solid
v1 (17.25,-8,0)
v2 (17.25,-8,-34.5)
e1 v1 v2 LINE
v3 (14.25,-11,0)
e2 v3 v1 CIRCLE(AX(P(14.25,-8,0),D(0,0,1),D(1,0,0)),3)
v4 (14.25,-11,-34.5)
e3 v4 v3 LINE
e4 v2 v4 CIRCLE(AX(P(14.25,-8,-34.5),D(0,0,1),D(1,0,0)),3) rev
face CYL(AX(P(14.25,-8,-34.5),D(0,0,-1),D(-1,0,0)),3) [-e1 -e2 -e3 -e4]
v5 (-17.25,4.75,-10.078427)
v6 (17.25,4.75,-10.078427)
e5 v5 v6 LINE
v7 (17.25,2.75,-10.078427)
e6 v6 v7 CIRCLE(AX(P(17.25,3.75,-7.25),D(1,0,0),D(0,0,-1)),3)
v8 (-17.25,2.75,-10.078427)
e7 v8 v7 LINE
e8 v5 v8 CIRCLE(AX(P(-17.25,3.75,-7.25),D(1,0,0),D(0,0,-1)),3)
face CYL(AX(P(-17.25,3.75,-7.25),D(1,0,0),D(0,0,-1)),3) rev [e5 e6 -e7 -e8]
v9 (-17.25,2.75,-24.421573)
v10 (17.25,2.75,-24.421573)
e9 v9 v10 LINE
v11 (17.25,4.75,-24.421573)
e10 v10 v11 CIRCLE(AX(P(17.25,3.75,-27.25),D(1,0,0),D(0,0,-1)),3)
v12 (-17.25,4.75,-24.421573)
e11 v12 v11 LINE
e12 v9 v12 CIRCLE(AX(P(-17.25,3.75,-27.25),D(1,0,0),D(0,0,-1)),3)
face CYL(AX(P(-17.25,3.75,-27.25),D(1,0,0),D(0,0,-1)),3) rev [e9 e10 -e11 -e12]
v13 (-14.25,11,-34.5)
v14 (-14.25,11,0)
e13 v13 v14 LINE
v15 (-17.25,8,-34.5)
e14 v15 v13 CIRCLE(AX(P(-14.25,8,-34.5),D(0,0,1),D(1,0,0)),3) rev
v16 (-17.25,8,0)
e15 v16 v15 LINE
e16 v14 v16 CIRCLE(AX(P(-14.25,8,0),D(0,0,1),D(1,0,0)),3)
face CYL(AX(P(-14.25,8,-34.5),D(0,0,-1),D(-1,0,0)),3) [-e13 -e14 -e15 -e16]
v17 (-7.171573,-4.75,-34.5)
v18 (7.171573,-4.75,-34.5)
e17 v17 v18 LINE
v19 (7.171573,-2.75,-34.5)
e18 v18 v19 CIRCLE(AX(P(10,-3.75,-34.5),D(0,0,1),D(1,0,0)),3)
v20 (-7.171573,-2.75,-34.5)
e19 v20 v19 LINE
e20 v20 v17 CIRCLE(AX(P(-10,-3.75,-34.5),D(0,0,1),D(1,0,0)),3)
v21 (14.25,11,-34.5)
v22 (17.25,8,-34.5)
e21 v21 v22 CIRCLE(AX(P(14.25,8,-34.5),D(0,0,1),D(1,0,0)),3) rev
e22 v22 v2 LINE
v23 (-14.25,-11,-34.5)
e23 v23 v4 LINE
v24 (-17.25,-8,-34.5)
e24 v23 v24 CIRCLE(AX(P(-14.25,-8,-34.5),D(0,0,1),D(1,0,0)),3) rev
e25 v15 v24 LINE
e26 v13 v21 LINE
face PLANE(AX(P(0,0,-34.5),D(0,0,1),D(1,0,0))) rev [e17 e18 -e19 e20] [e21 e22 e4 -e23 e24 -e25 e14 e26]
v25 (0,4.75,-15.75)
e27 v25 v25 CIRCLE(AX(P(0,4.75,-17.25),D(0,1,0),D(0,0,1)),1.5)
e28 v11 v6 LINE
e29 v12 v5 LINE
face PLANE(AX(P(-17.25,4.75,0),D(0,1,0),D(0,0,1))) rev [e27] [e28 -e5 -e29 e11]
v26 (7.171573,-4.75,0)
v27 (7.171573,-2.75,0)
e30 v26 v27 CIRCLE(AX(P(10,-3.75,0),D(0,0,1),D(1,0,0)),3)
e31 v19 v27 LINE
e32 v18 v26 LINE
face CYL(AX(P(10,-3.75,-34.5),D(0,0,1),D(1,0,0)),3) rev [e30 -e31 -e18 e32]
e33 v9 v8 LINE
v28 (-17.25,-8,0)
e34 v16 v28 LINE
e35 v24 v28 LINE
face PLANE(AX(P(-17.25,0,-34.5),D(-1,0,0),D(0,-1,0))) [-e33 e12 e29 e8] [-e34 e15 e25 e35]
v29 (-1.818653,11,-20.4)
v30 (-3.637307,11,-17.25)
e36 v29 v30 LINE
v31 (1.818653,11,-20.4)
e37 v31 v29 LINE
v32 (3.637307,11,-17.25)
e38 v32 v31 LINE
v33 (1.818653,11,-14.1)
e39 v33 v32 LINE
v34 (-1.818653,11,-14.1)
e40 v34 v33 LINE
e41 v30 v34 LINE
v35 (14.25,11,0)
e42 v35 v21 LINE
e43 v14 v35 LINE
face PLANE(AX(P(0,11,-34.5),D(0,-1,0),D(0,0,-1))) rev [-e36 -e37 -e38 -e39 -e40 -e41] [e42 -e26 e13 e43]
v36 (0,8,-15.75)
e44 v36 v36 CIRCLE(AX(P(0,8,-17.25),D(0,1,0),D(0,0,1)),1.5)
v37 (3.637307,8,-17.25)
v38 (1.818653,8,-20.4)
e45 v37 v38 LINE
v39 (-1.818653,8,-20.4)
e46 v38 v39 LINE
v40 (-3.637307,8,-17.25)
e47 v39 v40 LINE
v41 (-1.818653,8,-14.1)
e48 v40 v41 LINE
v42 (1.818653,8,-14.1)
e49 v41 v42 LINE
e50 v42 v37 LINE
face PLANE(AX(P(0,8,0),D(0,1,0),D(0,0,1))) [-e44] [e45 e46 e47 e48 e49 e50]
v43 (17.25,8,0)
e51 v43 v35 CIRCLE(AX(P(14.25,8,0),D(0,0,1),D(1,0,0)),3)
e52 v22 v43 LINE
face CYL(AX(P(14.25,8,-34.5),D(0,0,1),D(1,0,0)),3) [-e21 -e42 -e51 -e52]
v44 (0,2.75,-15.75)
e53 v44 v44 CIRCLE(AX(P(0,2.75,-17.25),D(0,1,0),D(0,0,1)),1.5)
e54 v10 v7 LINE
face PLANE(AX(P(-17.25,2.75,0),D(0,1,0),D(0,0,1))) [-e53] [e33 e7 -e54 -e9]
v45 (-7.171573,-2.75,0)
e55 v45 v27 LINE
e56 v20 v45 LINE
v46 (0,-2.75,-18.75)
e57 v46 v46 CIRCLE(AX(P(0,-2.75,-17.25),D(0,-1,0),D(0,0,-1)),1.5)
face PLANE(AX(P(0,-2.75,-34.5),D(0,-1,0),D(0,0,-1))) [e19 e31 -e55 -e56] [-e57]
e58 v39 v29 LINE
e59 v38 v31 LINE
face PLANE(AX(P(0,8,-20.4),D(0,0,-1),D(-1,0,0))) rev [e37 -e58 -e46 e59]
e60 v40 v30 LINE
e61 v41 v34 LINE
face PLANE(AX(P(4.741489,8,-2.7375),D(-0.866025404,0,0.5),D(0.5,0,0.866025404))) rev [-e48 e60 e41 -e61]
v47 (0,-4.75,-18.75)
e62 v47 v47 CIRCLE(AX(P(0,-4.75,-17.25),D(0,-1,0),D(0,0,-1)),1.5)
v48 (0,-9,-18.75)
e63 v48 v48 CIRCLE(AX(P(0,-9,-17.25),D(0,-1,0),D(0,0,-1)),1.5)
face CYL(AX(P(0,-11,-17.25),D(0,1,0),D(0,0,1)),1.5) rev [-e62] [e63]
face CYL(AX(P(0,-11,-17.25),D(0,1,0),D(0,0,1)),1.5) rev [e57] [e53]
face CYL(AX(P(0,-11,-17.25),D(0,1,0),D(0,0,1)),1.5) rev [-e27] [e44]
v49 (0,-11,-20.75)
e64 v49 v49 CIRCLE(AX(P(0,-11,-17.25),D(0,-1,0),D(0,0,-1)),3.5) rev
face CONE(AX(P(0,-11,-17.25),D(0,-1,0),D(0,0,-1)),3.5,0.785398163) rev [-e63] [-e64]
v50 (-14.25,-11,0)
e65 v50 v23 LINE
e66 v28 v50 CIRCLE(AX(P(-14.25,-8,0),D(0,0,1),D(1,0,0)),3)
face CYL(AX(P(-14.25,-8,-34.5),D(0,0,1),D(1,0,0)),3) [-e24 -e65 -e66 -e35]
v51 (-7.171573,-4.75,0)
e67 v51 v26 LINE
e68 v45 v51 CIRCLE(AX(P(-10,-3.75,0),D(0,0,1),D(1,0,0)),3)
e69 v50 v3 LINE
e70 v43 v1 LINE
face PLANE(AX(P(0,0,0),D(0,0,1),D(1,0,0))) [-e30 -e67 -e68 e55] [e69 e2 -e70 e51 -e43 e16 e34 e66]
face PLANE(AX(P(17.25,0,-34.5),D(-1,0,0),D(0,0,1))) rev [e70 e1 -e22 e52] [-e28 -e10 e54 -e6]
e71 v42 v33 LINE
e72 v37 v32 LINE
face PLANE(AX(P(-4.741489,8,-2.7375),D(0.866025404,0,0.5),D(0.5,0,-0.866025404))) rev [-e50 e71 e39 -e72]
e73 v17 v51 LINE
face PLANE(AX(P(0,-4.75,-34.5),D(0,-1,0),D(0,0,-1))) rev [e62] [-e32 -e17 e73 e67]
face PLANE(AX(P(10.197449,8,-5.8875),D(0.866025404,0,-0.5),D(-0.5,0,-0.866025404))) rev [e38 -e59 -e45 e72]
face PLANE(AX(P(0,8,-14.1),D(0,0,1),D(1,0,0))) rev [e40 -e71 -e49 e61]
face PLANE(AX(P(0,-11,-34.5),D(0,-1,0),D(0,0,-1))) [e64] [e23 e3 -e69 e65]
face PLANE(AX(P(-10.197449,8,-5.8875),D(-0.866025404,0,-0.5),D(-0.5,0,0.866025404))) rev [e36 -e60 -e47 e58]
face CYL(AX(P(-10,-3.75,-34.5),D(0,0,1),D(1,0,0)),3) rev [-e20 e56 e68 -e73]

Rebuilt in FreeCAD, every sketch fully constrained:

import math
import FreeCAD as App
import Part
import Sketcher

V = App.Vector
Q = App.Units.Quantity


def edges_at(feature, points):
    """Names of the edges that pass closest to the given points."""
    edges = feature.Shape.Edges
    near = lambda p: min(range(len(edges)), key=lambda i: edges[i].distToShape(Part.Vertex(*p))[0])
    return sorted({f"Edge{near(p) + 1}" for p in points})

doc = App.newDocument("Part")
body = doc.addObject("PartDesign::Body", "Body")

# Sketch on XY plane
sketch1 = doc.addObject("Sketcher::SketchObject", "Sketch")
body.addObject(sketch1)
sketch1.AttachmentSupport = (doc.XY_Plane, [""])
sketch1.MapMode = "FlatFace"
sketch1.addGeometry([
    Part.LineSegment(V(-17.25, 11, 0), V(-17.25, -11, 0)),  # 0
    Part.LineSegment(V(-17.25, -11, 0), V(17.25, -11, 0)),  # 1
    Part.LineSegment(V(17.25, -11, 0), V(17.25, 11, 0)),  # 2
    Part.LineSegment(V(17.25, 11, 0), V(-17.25, 11, 0)),  # 3
    Part.LineSegment(V(7.171573, -4.75, 0), V(-7.171573, -4.75, 0)),  # 4
    Part.ArcOfCircle(Part.Circle(V(-10, -3.75, 0), V(0, 0, 1), 3), math.radians(19.471221), math.radians(340.528779)),  # 5
    Part.LineSegment(V(-7.171573, -2.75, 0), V(7.171573, -2.75, 0)),  # 6
    Part.ArcOfCircle(Part.Circle(V(10, -3.75, 0), V(0, 0, 1), 3), math.radians(0), math.radians(160.528779)),  # 7
    Part.ArcOfCircle(Part.Circle(V(10, -3.75, 0), V(0, 0, 1), 3), math.radians(-160.528779), math.radians(0)),  # 8
], False)
sketch1.addConstraint([
    Sketcher.Constraint("Coincident", 0, 2, 1, 1),
    Sketcher.Constraint("Coincident", 1, 2, 2, 1),
    Sketcher.Constraint("Coincident", 2, 2, 3, 1),
    Sketcher.Constraint("Coincident", 3, 2, 0, 1),
    Sketcher.Constraint("Coincident", 4, 2, 5, 2),
    Sketcher.Constraint("Coincident", 5, 1, 6, 1),
    Sketcher.Constraint("Coincident", 6, 2, 7, 2),
    Sketcher.Constraint("Tangent", 7, 1, 8, 2),
    Sketcher.Constraint("Coincident", 8, 1, 4, 1),
    Sketcher.Constraint("Vertical", 0),
    Sketcher.Constraint("Horizontal", 1),
    Sketcher.Constraint("Vertical", 2),
    Sketcher.Constraint("Horizontal", 3),
    Sketcher.Constraint("Horizontal", 4),
    Sketcher.Constraint("Horizontal", 6),
    Sketcher.Constraint("Equal", 5, 7),
    Sketcher.Constraint("Equal", 7, 8),
    Sketcher.Constraint("Symmetric", 0, 2, 2, 2, -1, 1),
    Sketcher.Constraint("Symmetric", 5, 3, 7, 3, -2),
    Sketcher.Constraint("Horizontal", 8, 3, 7, 1),
    Sketcher.Constraint("Vertical", 4, 2, 5, 1),
    Sketcher.Constraint("Radius", 5, Q("3 mm")),
    Sketcher.Constraint("DistanceY", 0, 2, 0, 1, Q("22 mm")),
    Sketcher.Constraint("DistanceX", 1, 1, 1, 2, Q("34.5 mm")),
    Sketcher.Constraint("DistanceX", 5, 3, -1, 1, Q("10 mm")),
    Sketcher.Constraint("DistanceY", 4, 2, 5, 3, Q("1 mm")),
    Sketcher.Constraint("DistanceY", 5, 3, -1, 1, Q("3.75 mm")),
])
pad1 = doc.addObject("PartDesign::Pad", "Pad")
body.addObject(pad1)
pad1.Profile = sketch1
pad1.Length = 34.5
pad1.Reversed = True

# Sketch on YZ plane
sketch2 = doc.addObject("Sketcher::SketchObject", "Sketch001")
body.addObject(sketch2)
sketch2.AttachmentSupport = (doc.YZ_Plane, [""])
sketch2.MapMode = "FlatFace"
sketch2.AttachmentOffset = App.Placement(V(0, 0, 17.25), App.Rotation())
sketch2.addGeometry([
    Part.ArcOfCircle(Part.Circle(V(3.75, -7.25, 0), V(0, 0, 1), 3), math.radians(-70.528779), math.radians(250.528779)),
    Part.LineSegment(V(2.75, -10.078427, 0), V(2.75, -24.421573, 0)),
    Part.ArcOfCircle(Part.Circle(V(3.75, -27.25, 0), V(0, 0, 1), 3), math.radians(109.471221), math.radians(430.528779)),
    Part.LineSegment(V(4.75, -24.421573, 0), V(4.75, -10.078427, 0)),
], False)
sketch2.addConstraint([
    Sketcher.Constraint("Coincident", 0, 2, 1, 1),
    Sketcher.Constraint("Coincident", 1, 2, 2, 1),
    Sketcher.Constraint("Coincident", 2, 2, 3, 1),
    Sketcher.Constraint("Coincident", 3, 2, 0, 1),
    Sketcher.Constraint("Vertical", 1),
    Sketcher.Constraint("Vertical", 3),
    Sketcher.Constraint("Equal", 0, 2),
    Sketcher.Constraint("Horizontal", 1, 2, 2, 2),
    Sketcher.Constraint("Horizontal", 0, 2, 3, 2),
    Sketcher.Constraint("Radius", 0, Q("3 mm")),
    Sketcher.Constraint("DistanceY", 2, 3, 0, 3, Q("20 mm")),
    Sketcher.Constraint("DistanceX", 0, 2, 0, 3, Q("1 mm")),
    Sketcher.Constraint("DistanceX", -1, 1, 0, 3, Q("3.75 mm")),
    Sketcher.Constraint("DistanceY", 0, 3, -1, 1, Q("7.25 mm")),
])
pocket1 = doc.addObject("PartDesign::Pocket", "Pocket")
body.addObject(pocket1)
pocket1.Profile = sketch2
pocket1.Type = "ThroughAll"

# Sketch on XZ plane
sketch3 = doc.addObject("Sketcher::SketchObject", "Sketch002")
body.addObject(sketch3)
sketch3.AttachmentSupport = (doc.XZ_Plane, [""])
sketch3.MapMode = "FlatFace"
sketch3.AttachmentOffset = App.Placement(V(0, 0, -11), App.Rotation())
sketch3.addGeometry([
    Part.LineSegment(V(3.637307, -17.25, 0), V(1.818653, -20.4, 0)),  # 0
    Part.LineSegment(V(1.818653, -20.4, 0), V(-1.818653, -20.4, 0)),  # 1
    Part.LineSegment(V(-1.818653, -20.4, 0), V(-3.637307, -17.25, 0)),  # 2
    Part.LineSegment(V(-3.637307, -17.25, 0), V(-1.818653, -14.1, 0)),  # 3
    Part.LineSegment(V(-1.818653, -14.1, 0), V(1.818653, -14.1, 0)),  # 4
    Part.LineSegment(V(1.818653, -14.1, 0), V(3.637307, -17.25, 0)),  # 5
], False)
sketch3.addConstraint([
    Sketcher.Constraint("Coincident", 0, 2, 1, 1),
    Sketcher.Constraint("Coincident", 1, 2, 2, 1),
    Sketcher.Constraint("Coincident", 2, 2, 3, 1),
    Sketcher.Constraint("Coincident", 3, 2, 4, 1),
    Sketcher.Constraint("Coincident", 4, 2, 5, 1),
    Sketcher.Constraint("Coincident", 5, 2, 0, 1),
    Sketcher.Constraint("Horizontal", 1),
    Sketcher.Constraint("Horizontal", 4),
    Sketcher.Constraint("Symmetric", 2, 2, 5, 2, -2),
    Sketcher.Constraint("Parallel", 0, 3),
    Sketcher.Constraint("Parallel", 2, 5),
    Sketcher.Constraint("Vertical", 1, 2, 3, 2),
    Sketcher.Constraint("Vertical", 0, 2, 4, 2),
    Sketcher.Constraint("Angle", 0, Q("-120 deg")),
    Sketcher.Constraint("DistanceY", 0, 2, -1, 1, Q("20.4 mm")),
    Sketcher.Constraint("DistanceY", 3, 2, -1, 1, Q("14.1 mm")),
    Sketcher.Constraint("DistanceX", 1, 2, 1, 1, Q("3.637307 mm")),
])
pocket2 = doc.addObject("PartDesign::Pocket", "Pocket001")
body.addObject(pocket2)
pocket2.Profile = sketch3
pocket2.Length = 3
pocket2.Reversed = True

# Sketch on XZ plane
sketch4 = doc.addObject("Sketcher::SketchObject", "Sketch003")
body.addObject(sketch4)
sketch4.AttachmentSupport = (doc.XZ_Plane, [""])
sketch4.MapMode = "FlatFace"
sketch4.AttachmentOffset = App.Placement(V(0, 0, -11), App.Rotation())
sketch4.addGeometry(Part.Circle(V(0, -17.25, 0), V(0, 0, 1), 1.5), False)
sketch4.addConstraint([
    Sketcher.Constraint("PointOnObject", 0, 3, -2),
    Sketcher.Constraint("Diameter", 0, Q("3 mm")),
    Sketcher.Constraint("DistanceY", 0, 3, -1, 1, Q("17.25 mm")),
])
pocket3 = doc.addObject("PartDesign::Pocket", "Pocket002")
body.addObject(pocket3)
pocket3.Profile = sketch4
pocket3.Type = "ThroughAll"
pocket3.Reversed = True
doc.recompute()

chamfer = doc.addObject("PartDesign::Chamfer", "Chamfer")
body.addObject(chamfer)
chamfer.Base = (pocket3, edges_at(pocket3, [(0, -11, -18.75)]))
chamfer.Size = 2
doc.recompute()

fillet = doc.addObject("PartDesign::Fillet", "Fillet")
body.addObject(fillet)
fillet.Base = (chamfer, edges_at(chamfer, [
    (17.25, -11, -17.25),
    (-17.25, -11, -17.25),
    (-17.25, 11, -17.25),
    (17.25, 11, -17.25),
]))
fillet.Radius = 3

doc.recompute()
